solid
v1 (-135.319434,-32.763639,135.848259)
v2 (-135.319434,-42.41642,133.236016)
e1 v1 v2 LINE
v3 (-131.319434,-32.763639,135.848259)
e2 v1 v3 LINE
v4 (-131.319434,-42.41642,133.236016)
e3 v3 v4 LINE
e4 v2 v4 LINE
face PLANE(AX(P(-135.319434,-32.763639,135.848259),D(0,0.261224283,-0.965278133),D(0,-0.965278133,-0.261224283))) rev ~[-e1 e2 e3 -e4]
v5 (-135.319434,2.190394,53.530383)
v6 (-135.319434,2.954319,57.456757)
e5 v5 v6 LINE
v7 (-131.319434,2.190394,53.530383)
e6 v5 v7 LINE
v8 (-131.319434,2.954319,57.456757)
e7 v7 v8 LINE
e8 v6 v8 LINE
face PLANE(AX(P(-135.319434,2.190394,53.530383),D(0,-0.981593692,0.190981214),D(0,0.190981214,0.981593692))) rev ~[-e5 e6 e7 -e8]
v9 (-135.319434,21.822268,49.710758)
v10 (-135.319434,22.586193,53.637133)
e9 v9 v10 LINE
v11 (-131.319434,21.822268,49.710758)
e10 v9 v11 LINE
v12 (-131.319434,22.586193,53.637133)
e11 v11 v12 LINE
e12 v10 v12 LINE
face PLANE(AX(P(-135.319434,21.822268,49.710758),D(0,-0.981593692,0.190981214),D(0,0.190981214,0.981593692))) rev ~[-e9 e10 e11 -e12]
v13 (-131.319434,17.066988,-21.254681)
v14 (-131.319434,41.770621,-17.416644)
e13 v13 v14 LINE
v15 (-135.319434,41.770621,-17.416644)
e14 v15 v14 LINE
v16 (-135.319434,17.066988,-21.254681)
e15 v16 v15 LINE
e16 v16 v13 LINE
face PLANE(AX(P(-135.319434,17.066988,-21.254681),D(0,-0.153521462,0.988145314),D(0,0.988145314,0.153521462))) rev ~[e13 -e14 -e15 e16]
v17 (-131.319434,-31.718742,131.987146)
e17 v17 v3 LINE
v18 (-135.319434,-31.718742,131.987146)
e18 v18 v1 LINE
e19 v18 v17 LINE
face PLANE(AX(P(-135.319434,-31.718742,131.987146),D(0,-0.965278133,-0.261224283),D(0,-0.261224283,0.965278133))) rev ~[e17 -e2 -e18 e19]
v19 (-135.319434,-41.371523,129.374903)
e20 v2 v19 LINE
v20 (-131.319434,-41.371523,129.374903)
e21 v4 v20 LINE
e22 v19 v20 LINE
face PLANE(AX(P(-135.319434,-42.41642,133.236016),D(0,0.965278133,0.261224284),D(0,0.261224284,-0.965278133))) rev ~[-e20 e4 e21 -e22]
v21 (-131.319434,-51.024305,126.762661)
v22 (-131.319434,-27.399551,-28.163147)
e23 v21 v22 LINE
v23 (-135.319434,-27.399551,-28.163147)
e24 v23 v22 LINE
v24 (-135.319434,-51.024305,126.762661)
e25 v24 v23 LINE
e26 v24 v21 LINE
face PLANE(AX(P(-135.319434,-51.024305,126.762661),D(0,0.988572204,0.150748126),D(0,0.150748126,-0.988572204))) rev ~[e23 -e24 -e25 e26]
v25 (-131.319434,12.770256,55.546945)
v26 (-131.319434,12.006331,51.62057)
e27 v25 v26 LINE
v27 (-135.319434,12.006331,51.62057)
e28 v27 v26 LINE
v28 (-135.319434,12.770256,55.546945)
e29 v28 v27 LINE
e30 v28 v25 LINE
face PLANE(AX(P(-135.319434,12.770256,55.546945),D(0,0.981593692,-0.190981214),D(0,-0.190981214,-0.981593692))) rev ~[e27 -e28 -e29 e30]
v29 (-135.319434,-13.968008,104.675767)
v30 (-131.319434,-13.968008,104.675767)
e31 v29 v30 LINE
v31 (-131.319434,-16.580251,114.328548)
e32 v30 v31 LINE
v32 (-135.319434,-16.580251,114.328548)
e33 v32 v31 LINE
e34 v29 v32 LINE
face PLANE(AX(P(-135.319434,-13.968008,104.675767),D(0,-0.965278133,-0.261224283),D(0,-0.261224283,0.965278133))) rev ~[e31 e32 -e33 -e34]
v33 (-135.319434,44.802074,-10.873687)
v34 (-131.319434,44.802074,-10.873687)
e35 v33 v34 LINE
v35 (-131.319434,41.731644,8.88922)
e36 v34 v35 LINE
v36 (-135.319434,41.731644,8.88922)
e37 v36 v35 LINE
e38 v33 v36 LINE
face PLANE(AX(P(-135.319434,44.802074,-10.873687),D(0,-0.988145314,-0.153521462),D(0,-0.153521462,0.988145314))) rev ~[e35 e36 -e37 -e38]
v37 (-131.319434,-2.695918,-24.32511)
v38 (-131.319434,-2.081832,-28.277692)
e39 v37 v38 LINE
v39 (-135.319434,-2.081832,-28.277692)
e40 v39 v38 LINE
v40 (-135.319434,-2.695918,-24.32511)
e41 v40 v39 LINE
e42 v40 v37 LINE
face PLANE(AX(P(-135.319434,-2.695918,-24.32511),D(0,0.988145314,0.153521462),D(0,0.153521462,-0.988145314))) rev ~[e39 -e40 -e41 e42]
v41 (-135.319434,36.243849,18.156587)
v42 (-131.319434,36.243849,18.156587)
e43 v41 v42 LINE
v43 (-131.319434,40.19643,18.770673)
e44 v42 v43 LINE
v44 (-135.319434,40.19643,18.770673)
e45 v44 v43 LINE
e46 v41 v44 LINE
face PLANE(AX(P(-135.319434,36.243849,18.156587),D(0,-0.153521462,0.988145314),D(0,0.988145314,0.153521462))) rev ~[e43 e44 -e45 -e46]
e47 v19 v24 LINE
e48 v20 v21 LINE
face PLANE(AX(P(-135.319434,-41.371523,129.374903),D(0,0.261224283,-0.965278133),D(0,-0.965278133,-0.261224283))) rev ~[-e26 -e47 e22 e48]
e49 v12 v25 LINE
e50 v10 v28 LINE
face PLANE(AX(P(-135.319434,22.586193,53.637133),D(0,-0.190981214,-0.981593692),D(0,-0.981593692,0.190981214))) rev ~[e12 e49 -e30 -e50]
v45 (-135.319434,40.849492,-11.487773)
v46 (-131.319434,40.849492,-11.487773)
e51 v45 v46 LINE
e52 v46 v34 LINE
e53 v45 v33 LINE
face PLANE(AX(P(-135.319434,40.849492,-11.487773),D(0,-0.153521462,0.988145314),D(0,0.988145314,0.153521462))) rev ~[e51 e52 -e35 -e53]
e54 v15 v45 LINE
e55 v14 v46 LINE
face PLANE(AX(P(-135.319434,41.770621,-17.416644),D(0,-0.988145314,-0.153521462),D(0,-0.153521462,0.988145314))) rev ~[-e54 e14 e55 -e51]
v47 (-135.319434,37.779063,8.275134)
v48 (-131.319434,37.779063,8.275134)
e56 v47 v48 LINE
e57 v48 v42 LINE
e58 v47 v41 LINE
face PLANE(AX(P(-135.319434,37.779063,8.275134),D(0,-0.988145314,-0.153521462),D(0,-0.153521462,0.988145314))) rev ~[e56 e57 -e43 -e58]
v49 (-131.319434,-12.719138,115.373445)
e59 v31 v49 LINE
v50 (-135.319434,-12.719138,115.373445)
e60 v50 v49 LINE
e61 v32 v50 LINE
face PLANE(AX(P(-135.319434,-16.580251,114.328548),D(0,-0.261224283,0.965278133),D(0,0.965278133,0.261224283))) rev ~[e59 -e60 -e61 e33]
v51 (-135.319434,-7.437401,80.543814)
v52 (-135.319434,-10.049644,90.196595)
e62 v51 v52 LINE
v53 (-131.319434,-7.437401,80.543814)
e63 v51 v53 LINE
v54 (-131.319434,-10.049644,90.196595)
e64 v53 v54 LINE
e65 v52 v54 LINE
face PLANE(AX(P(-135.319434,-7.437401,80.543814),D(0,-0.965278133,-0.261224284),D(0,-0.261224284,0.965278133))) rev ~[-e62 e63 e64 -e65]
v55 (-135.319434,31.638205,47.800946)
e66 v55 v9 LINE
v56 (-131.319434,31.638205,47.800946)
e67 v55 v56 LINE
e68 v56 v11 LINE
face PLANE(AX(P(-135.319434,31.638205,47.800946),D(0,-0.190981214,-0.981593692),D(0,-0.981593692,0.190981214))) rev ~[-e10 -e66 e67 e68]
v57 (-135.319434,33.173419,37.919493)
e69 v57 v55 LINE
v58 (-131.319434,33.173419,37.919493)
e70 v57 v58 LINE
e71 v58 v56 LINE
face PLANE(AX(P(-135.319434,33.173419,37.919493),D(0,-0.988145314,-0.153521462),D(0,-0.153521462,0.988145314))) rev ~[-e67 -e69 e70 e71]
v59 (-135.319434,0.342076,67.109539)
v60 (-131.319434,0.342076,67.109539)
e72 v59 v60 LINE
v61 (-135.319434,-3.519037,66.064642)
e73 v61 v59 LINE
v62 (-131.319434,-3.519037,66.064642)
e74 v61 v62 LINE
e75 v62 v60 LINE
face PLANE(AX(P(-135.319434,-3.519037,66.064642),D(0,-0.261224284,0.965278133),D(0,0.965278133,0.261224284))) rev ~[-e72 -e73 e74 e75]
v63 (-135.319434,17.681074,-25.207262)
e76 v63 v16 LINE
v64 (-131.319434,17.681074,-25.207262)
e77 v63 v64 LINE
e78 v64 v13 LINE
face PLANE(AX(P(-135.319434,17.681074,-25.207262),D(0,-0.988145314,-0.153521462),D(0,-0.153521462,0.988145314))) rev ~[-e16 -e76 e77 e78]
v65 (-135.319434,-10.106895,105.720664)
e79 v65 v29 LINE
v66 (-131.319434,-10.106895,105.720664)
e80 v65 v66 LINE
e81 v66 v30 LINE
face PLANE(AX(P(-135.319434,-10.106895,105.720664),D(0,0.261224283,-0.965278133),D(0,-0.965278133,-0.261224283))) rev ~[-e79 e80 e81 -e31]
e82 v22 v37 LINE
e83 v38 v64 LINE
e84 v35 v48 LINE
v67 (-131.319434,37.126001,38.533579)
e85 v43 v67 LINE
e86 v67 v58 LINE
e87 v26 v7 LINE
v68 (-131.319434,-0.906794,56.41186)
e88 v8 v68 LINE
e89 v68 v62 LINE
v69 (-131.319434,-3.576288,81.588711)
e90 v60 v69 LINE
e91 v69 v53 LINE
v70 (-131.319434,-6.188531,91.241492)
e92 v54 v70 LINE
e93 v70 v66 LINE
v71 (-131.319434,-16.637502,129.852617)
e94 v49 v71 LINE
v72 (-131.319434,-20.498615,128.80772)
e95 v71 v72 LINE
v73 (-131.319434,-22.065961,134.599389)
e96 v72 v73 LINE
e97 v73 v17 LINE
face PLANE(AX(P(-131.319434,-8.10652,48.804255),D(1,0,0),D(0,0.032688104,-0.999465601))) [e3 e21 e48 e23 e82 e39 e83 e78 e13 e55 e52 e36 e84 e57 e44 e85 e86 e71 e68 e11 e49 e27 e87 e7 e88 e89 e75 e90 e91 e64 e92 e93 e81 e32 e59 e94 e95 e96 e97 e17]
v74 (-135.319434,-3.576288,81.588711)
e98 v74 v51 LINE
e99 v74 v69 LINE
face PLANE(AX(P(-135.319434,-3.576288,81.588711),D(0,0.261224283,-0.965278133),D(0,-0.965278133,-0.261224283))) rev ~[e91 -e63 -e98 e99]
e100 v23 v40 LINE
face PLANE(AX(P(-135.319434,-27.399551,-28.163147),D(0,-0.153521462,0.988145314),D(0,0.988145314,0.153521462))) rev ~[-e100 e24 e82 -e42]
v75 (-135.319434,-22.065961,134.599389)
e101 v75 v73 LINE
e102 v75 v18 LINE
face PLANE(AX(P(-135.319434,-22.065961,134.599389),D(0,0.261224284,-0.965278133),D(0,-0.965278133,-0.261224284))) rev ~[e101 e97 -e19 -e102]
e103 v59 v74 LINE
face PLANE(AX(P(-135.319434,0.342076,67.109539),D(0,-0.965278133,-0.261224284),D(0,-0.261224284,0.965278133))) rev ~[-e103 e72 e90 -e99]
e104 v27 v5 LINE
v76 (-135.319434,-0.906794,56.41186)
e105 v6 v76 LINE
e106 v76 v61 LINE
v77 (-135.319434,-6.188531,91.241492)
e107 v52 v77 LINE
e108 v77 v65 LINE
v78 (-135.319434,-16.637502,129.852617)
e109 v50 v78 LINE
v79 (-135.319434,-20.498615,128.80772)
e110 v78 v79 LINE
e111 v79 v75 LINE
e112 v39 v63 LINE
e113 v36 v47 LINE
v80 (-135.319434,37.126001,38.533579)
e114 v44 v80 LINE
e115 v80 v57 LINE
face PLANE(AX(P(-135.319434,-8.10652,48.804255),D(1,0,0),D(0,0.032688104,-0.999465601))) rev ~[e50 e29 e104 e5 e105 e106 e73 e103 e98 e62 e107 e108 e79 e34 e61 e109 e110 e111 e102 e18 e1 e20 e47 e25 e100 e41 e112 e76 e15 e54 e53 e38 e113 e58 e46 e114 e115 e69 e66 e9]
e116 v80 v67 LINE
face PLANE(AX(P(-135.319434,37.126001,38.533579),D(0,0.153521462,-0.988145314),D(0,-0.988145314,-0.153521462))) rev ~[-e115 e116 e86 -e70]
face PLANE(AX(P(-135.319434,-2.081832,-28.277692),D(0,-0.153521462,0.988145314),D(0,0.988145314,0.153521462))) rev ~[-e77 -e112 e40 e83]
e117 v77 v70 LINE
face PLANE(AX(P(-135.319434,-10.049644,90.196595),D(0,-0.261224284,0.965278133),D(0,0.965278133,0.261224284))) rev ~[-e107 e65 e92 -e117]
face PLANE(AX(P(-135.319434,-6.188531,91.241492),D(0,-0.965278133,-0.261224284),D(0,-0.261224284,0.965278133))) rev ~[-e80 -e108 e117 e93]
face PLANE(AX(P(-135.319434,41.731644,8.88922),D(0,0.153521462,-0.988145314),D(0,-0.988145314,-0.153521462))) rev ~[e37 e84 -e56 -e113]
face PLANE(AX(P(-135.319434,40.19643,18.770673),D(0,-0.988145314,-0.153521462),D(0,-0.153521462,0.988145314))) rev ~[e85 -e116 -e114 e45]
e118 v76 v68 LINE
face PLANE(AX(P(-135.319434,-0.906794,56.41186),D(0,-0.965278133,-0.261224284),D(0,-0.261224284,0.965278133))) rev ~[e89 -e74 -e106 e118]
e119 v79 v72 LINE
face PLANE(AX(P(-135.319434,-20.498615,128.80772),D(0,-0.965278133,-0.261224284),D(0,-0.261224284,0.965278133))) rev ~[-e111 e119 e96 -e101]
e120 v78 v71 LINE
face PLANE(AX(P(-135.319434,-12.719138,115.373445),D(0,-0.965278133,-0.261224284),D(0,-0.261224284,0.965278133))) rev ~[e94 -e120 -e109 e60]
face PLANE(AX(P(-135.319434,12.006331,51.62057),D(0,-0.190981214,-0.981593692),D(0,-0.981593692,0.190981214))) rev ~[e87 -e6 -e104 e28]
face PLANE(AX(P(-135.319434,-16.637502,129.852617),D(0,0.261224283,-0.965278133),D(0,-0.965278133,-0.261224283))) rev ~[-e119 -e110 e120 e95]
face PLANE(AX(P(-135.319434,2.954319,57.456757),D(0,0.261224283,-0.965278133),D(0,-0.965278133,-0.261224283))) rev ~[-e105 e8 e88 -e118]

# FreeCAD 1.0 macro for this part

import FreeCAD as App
import Part
import Sketcher

V = App.Vector

doc = App.newDocument("Part")
params = doc.addObject("Spreadsheet::Sheet", "Params")
for row, (alias, value) in enumerate([
    ("sketch1_length", "25 mm"),
    ("sketch1_length2", "10 mm"),
    ("sketch1_length3", "4 mm"),
    ("sketch1_length4", "6 mm"),
    ("sketch1_length5", "15 mm"),
    ("pad1_length", "4 mm"),
], start=1):
    params.set(f"A{row}", alias)
    params.set(f"B{row}", "=" + value)
    params.setAlias(f"B{row}", alias)

body = doc.addObject("PartDesign::Body", "Body")

sketch1 = body.newObject("Sketcher::SketchObject", "Sketch")
sketch1.AttachmentSupport = (doc.getObject("YZ_Plane"), [""])
sketch1.MapMode = "FlatFace"
sketch1.AttachmentOffset = App.Placement(V(0, 0, -135.319434), App.Rotation())
sketch1.addGeometry([
    Part.LineSegment(V(-2.7, -24.3, 0), V(-27.4, -28.2, 0)),
    Part.LineSegment(V(-27.4, -28.2, 0), V(-51, 126.8, 0)),
    Part.LineSegment(V(-51, 126.8, 0), V(-41.4, 129.4, 0)),
    Part.LineSegment(V(-41.4, 129.4, 0), V(-42.4, 133.2, 0)),
    Part.LineSegment(V(-42.4, 133.2, 0), V(-32.8, 135.8, 0)),
    Part.LineSegment(V(-32.8, 135.8, 0), V(-31.7, 132, 0)),
    Part.LineSegment(V(-31.7, 132, 0), V(-22.1, 134.6, 0)),
    Part.LineSegment(V(-22.1, 134.6, 0), V(-20.5, 128.8, 0)),
    Part.LineSegment(V(-20.5, 128.8, 0), V(-16.6, 129.9, 0)),
    Part.LineSegment(V(-16.6, 129.9, 0), V(-12.7, 115.4, 0)),
    Part.LineSegment(V(-12.7, 115.4, 0), V(-16.6, 114.3, 0)),
    Part.LineSegment(V(-16.6, 114.3, 0), V(-14, 104.7, 0)),
    Part.LineSegment(V(-14, 104.7, 0), V(-10.1, 105.7, 0)),
    Part.LineSegment(V(-10.1, 105.7, 0), V(-6.2, 91.2, 0)),
    Part.LineSegment(V(-6.2, 91.2, 0), V(-10, 90.2, 0)),
    Part.LineSegment(V(-10, 90.2, 0), V(-7.4, 80.5, 0)),
    Part.LineSegment(V(-7.4, 80.5, 0), V(-3.6, 81.6, 0)),
    Part.LineSegment(V(-3.6, 81.6, 0), V(0.3, 67.1, 0)),
    Part.LineSegment(V(0.3, 67.1, 0), V(-3.5, 66.1, 0)),
    Part.LineSegment(V(-3.5, 66.1, 0), V(-0.9, 56.4, 0)),
    Part.LineSegment(V(-0.9, 56.4, 0), V(3, 57.5, 0)),
    Part.LineSegment(V(3, 57.5, 0), V(2.2, 53.5, 0)),
    Part.LineSegment(V(2.2, 53.5, 0), V(12, 51.6, 0)),
    Part.LineSegment(V(12, 51.6, 0), V(12.8, 55.5, 0)),
    Part.LineSegment(V(12.8, 55.5, 0), V(22.6, 53.6, 0)),
    Part.LineSegment(V(22.6, 53.6, 0), V(21.8, 49.7, 0)),
    Part.LineSegment(V(21.8, 49.7, 0), V(31.6, 47.8, 0)),
    Part.LineSegment(V(31.6, 47.8, 0), V(33.2, 37.9, 0)),
    Part.LineSegment(V(33.2, 37.9, 0), V(37.1, 38.5, 0)),
    Part.LineSegment(V(37.1, 38.5, 0), V(40.2, 18.8, 0)),
    Part.LineSegment(V(40.2, 18.8, 0), V(36.2, 18.2, 0)),
    Part.LineSegment(V(36.2, 18.2, 0), V(37.8, 8.3, 0)),
    Part.LineSegment(V(37.8, 8.3, 0), V(41.7, 8.9, 0)),
    Part.LineSegment(V(41.7, 8.9, 0), V(44.8, -10.9, 0)),
    Part.LineSegment(V(44.8, -10.9, 0), V(40.8, -11.5, 0)),
    Part.LineSegment(V(40.8, -11.5, 0), V(41.8, -17.4, 0)),
    Part.LineSegment(V(41.8, -17.4, 0), V(17.1, -21.3, 0)),
    Part.LineSegment(V(17.1, -21.3, 0), V(17.7, -25.2, 0)),
    Part.LineSegment(V(17.7, -25.2, 0), V(-2.1, -28.3, 0)),
    Part.LineSegment(V(-2.1, -28.3, 0), V(-2.7, -24.3, 0)),
], False)
sketch1.addConstraint([
    Sketcher.Constraint("Coincident", 0, 2, 1, 1),
    Sketcher.Constraint("Coincident", 1, 2, 2, 1),
    Sketcher.Constraint("Coincident", 2, 2, 3, 1),
    Sketcher.Constraint("Coincident", 3, 2, 4, 1),
    Sketcher.Constraint("Coincident", 4, 2, 5, 1),
    Sketcher.Constraint("Coincident", 5, 2, 6, 1),
    Sketcher.Constraint("Coincident", 6, 2, 7, 1),
    Sketcher.Constraint("Coincident", 7, 2, 8, 1),
    Sketcher.Constraint("Coincident", 8, 2, 9, 1),
    Sketcher.Constraint("Coincident", 9, 2, 10, 1),
    Sketcher.Constraint("Coincident", 10, 2, 11, 1),
    Sketcher.Constraint("Coincident", 11, 2, 12, 1),
    Sketcher.Constraint("Coincident", 12, 2, 13, 1),
    Sketcher.Constraint("Coincident", 13, 2, 14, 1),
    Sketcher.Constraint("Coincident", 14, 2, 15, 1),
    Sketcher.Constraint("Coincident", 15, 2, 16, 1),
    Sketcher.Constraint("Coincident", 16, 2, 17, 1),
    Sketcher.Constraint("Coincident", 17, 2, 18, 1),
    Sketcher.Constraint("Coincident", 18, 2, 19, 1),
    Sketcher.Constraint("Coincident", 19, 2, 20, 1),
    Sketcher.Constraint("Coincident", 20, 2, 21, 1),
    Sketcher.Constraint("Coincident", 21, 2, 22, 1),
    Sketcher.Constraint("Coincident", 22, 2, 23, 1),
    Sketcher.Constraint("Coincident", 23, 2, 24, 1),
    Sketcher.Constraint("Coincident", 24, 2, 25, 1),
    Sketcher.Constraint("Coincident", 25, 2, 26, 1),
    Sketcher.Constraint("Coincident", 26, 2, 27, 1),
    Sketcher.Constraint("Coincident", 27, 2, 28, 1),
    Sketcher.Constraint("Coincident", 28, 2, 29, 1),
    Sketcher.Constraint("Coincident", 29, 2, 30, 1),
    Sketcher.Constraint("Coincident", 30, 2, 31, 1),
    Sketcher.Constraint("Coincident", 31, 2, 32, 1),
    Sketcher.Constraint("Coincident", 32, 2, 33, 1),
    Sketcher.Constraint("Coincident", 33, 2, 34, 1),
    Sketcher.Constraint("Coincident", 34, 2, 35, 1),
    Sketcher.Constraint("Coincident", 35, 2, 36, 1),
    Sketcher.Constraint("Coincident", 36, 2, 37, 1),
    Sketcher.Constraint("Coincident", 37, 2, 38, 1),
    Sketcher.Constraint("Coincident", 38, 2, 39, 1),
    Sketcher.Constraint("Coincident", 39, 2, 0, 1),
    Sketcher.Constraint("Perpendicular", 2, 3),
    Sketcher.Constraint("Perpendicular", 3, 4),
    Sketcher.Constraint("Perpendicular", 4, 5),
    Sketcher.Constraint("Perpendicular", 5, 6),
    Sketcher.Constraint("Perpendicular", 6, 7),
    Sketcher.Constraint("Perpendicular", 7, 8),
    Sketcher.Constraint("Perpendicular", 8, 9),
    Sketcher.Constraint("Perpendicular", 9, 10),
    Sketcher.Constraint("Perpendicular", 10, 11),
    Sketcher.Constraint("Perpendicular", 11, 12),
    Sketcher.Constraint("Perpendicular", 12, 13),
    Sketcher.Constraint("Perpendicular", 13, 14),
    Sketcher.Constraint("Perpendicular", 14, 15),
    Sketcher.Constraint("Perpendicular", 15, 16),
    Sketcher.Constraint("Perpendicular", 16, 17),
    Sketcher.Constraint("Perpendicular", 17, 18),
    Sketcher.Constraint("Perpendicular", 18, 19),
    Sketcher.Constraint("Perpendicular", 19, 20),
    Sketcher.Constraint("Perpendicular", 21, 22),
    Sketcher.Constraint("Perpendicular", 22, 23),
    Sketcher.Constraint("Perpendicular", 23, 24),
    Sketcher.Constraint("Perpendicular", 24, 25),
    Sketcher.Constraint("Perpendicular", 25, 26),
    Sketcher.Constraint("Perpendicular", 0, 27),
    Sketcher.Constraint("Perpendicular", 27, 28),
    Sketcher.Constraint("Perpendicular", 28, 29),
    Sketcher.Constraint("Perpendicular", 29, 30),
    Sketcher.Constraint("Perpendicular", 30, 31),
    Sketcher.Constraint("Perpendicular", 31, 32),
    Sketcher.Constraint("Perpendicular", 32, 33),
    Sketcher.Constraint("Perpendicular", 33, 34),
    Sketcher.Constraint("Perpendicular", 34, 35),
    Sketcher.Constraint("Perpendicular", 35, 36),
    Sketcher.Constraint("Perpendicular", 36, 37),
    Sketcher.Constraint("Perpendicular", 37, 38),
    Sketcher.Constraint("Perpendicular", 38, 39),
    Sketcher.Constraint("Equal", 2, 4),
    Sketcher.Constraint("Equal", 3, 5),
    Sketcher.Constraint("Equal", 4, 6),
    Sketcher.Constraint("Equal", 5, 8),
    Sketcher.Constraint("Equal", 8, 10),
    Sketcher.Constraint("Equal", 6, 11),
    Sketcher.Constraint("Equal", 10, 12),
    Sketcher.Constraint("Equal", 9, 13),
    Sketcher.Constraint("Equal", 12, 14),
    Sketcher.Constraint("Equal", 11, 15),
    Sketcher.Constraint("Equal", 14, 16),
    Sketcher.Constraint("Equal", 13, 17),
    Sketcher.Constraint("Equal", 16, 18),
    Sketcher.Constraint("Equal", 15, 19),
    Sketcher.Constraint("Equal", 18, 20),
    Sketcher.Constraint("Equal", 20, 21),
    Sketcher.Constraint("Equal", 19, 22),
    Sketcher.Constraint("Equal", 21, 23),
    Sketcher.Constraint("Equal", 22, 24),
    Sketcher.Constraint("Equal", 23, 25),
    Sketcher.Constraint("Equal", 24, 26),
    Sketcher.Constraint("Equal", 26, 27),
    Sketcher.Constraint("Equal", 25, 28),
    Sketcher.Constraint("Equal", 28, 30),
    Sketcher.Constraint("Equal", 27, 31),
    Sketcher.Constraint("Equal", 30, 32),
    Sketcher.Constraint("Equal", 29, 33),
    Sketcher.Constraint("Equal", 32, 34),
    Sketcher.Constraint("Equal", 7, 35),
    Sketcher.Constraint("Equal", 0, 36),
    Sketcher.Constraint("Equal", 34, 37),
    Sketcher.Constraint("Equal", 33, 38),
    Sketcher.Constraint("Equal", 37, 39),
    Sketcher.Constraint("Distance", 0, 25.0),
    Sketcher.Constraint("Distance", 2, 10.0),
    Sketcher.Constraint("Distance", 3, 4.0),
    Sketcher.Constraint("Distance", 7, 6.0),
    Sketcher.Constraint("Distance", 9, 15.0),
    Sketcher.Constraint("Distance", 29, 20.0),
    Sketcher.Constraint("DistanceX", -1, 1, 28, 2, 37.126001),
    Sketcher.Constraint("DistanceY", 25, 2, 20, 2, 7.745999),
    Sketcher.Constraint("DistanceX", 37, 2, 33, 2, 27.120999),
    Sketcher.Constraint("DistanceX", 15, 2, -1, 1, 7.437401),
    Sketcher.Constraint("DistanceY", -1, 1, 1, 2, 126.76266),
])
sketch1.setExpression("Constraints[109]", "Params.sketch1_length")
sketch1.setExpression("Constraints[110]", "Params.sketch1_length2")
sketch1.setExpression("Constraints[111]", "Params.sketch1_length3")
sketch1.setExpression("Constraints[112]", "Params.sketch1_length4")
sketch1.setExpression("Constraints[113]", "Params.sketch1_length5")
pad1 = body.newObject("PartDesign::Pad", "Pad")
pad1.Profile = sketch1
pad1.setExpression("Length", "Params.pad1_length")

doc.recompute()
